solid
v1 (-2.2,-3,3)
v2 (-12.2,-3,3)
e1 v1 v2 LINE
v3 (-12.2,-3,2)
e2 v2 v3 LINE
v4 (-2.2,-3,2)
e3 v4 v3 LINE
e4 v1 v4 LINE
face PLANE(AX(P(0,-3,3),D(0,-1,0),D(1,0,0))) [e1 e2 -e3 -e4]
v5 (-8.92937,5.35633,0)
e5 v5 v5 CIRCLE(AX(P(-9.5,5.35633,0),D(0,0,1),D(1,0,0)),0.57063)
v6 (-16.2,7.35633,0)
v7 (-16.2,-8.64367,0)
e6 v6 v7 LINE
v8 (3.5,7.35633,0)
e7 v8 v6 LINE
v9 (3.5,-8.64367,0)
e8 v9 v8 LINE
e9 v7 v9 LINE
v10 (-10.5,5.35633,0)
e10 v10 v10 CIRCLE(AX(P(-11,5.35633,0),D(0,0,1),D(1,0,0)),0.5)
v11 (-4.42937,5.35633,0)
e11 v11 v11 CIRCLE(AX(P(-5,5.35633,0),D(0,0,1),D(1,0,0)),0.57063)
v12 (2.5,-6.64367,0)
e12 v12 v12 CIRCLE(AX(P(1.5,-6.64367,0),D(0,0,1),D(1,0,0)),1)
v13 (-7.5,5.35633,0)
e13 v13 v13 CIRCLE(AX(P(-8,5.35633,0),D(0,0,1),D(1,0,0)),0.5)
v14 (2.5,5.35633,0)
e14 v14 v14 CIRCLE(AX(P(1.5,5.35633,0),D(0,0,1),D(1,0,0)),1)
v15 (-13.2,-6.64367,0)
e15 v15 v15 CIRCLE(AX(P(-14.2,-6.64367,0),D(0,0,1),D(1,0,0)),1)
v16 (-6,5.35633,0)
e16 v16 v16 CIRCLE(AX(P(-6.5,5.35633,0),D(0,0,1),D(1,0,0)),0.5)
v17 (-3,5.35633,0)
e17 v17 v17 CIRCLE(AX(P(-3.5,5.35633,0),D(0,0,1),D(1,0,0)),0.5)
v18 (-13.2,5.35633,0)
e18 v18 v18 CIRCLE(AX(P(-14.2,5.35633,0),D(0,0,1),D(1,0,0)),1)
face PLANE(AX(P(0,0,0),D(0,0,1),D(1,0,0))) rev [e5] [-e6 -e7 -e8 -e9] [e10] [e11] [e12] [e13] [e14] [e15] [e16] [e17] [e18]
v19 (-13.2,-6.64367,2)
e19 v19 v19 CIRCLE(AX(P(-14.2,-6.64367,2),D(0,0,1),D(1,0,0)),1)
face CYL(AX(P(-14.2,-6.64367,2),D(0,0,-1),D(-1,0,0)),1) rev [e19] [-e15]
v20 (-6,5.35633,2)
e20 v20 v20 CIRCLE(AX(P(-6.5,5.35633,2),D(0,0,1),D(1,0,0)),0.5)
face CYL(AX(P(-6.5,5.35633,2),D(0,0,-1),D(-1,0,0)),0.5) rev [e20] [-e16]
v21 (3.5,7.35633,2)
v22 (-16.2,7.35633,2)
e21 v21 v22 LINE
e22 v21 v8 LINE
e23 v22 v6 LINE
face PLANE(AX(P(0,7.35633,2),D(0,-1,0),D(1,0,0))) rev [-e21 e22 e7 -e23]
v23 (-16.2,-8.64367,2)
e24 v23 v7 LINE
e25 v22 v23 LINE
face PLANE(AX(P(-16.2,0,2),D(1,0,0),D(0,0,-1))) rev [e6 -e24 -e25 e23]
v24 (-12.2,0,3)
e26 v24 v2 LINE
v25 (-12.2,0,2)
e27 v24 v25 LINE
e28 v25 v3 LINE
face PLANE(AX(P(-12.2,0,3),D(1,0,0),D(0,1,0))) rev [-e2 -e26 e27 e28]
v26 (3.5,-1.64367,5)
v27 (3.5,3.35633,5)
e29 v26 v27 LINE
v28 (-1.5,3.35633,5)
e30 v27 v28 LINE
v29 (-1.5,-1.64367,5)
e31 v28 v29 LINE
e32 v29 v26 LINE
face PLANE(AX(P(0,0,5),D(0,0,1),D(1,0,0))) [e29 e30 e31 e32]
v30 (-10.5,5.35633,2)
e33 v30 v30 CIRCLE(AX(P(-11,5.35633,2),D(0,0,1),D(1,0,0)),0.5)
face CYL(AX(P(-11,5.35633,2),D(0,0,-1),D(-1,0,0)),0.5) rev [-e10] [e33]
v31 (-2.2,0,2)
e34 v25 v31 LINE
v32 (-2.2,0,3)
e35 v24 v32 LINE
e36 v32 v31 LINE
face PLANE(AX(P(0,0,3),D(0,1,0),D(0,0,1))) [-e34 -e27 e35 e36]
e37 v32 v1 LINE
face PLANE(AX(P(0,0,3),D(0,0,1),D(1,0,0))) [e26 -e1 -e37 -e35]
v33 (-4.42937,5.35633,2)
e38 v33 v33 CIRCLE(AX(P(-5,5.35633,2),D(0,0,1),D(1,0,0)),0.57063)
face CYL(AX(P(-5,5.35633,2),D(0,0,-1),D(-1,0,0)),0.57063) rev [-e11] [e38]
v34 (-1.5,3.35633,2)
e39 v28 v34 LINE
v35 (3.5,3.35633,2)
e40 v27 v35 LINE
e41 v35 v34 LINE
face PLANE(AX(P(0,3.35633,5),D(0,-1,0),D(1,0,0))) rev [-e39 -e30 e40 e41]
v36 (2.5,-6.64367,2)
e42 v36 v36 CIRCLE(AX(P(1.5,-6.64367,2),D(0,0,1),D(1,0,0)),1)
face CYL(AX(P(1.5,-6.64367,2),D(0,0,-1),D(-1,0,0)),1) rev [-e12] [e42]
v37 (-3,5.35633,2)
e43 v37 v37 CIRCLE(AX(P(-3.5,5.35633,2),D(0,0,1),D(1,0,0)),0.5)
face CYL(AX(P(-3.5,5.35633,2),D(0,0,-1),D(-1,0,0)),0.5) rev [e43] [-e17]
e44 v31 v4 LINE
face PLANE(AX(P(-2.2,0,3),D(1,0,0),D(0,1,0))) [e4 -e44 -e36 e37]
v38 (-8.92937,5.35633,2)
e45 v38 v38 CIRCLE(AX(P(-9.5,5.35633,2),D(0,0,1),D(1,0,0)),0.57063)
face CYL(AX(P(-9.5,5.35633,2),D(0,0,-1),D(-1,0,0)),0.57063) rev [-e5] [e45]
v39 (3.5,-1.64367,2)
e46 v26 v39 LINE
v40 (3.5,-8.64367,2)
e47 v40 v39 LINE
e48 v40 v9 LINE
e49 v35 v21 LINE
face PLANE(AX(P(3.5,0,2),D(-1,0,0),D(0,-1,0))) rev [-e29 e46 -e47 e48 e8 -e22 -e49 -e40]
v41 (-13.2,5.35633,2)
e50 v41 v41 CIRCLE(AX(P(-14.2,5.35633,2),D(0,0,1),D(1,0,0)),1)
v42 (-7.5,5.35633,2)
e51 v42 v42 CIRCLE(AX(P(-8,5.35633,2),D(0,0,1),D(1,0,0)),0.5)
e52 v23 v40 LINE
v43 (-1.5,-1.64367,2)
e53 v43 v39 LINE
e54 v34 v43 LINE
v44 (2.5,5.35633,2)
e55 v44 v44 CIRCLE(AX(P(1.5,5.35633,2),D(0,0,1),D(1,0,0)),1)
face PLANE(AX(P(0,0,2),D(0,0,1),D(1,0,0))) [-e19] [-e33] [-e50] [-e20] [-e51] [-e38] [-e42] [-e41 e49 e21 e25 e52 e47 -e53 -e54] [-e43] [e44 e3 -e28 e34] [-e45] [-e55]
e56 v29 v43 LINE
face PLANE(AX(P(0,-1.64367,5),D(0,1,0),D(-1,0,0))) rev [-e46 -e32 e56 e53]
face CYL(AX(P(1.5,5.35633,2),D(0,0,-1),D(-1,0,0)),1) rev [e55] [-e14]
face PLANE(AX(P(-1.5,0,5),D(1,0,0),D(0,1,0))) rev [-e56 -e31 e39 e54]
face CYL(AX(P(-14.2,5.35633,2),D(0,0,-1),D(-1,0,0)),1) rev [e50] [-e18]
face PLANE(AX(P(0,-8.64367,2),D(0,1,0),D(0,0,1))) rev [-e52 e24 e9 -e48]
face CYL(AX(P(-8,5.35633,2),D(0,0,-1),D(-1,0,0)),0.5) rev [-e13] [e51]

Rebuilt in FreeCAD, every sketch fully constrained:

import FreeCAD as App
import Part
import Sketcher

doc = App.newDocument("Part")
body = doc.addObject("PartDesign::Body", "Body")

sketch1 = doc.addObject("Sketcher::SketchObject", "Sketch")
body.addObject(sketch1)
sketch1.AttachmentSupport = (doc.XY_Plane, [""])
sketch1.MapMode = "FlatFace"
sketch1.addGeometry(Part.LineSegment(App.Vector(3.5, 7.4, 0), App.Vector(-16.2, 7.4, 0)), False)
sketch1.addGeometry(Part.LineSegment(App.Vector(-16.2, 7.4, 0), App.Vector(-16.2, -8.6, 0)), False)
sketch1.addGeometry(Part.LineSegment(App.Vector(-16.2, -8.6, 0), App.Vector(3.5, -8.6, 0)), False)
sketch1.addGeometry(Part.LineSegment(App.Vector(3.5, -8.6, 0), App.Vector(3.5, -1.6, 0)), False)
sketch1.addGeometry(Part.LineSegment(App.Vector(3.5, -1.6, 0), App.Vector(-1.5, -1.6, 0)), False)
sketch1.addGeometry(Part.LineSegment(App.Vector(-1.5, -1.6, 0), App.Vector(-1.5, 3.4, 0)), False)
sketch1.addGeometry(Part.LineSegment(App.Vector(-1.5, 3.4, 0), App.Vector(3.5, 3.4, 0)), False)
sketch1.addGeometry(Part.LineSegment(App.Vector(3.5, 3.4, 0), App.Vector(3.5, 7.4, 0)), False)
sketch1.addGeometry(Part.Circle(App.Vector(-14.2, -6.6, 0), App.Vector(0, 0, 1), 1), False)
sketch1.addGeometry(Part.LineSegment(App.Vector(-2.2, -3, 0), App.Vector(-12.2, -3, 0)), False)
sketch1.addGeometry(Part.LineSegment(App.Vector(-12.2, -3, 0), App.Vector(-12.2, 0, 0)), False)
sketch1.addGeometry(Part.LineSegment(App.Vector(-12.2, 0, 0), App.Vector(-2.2, 0, 0)), False)
sketch1.addGeometry(Part.LineSegment(App.Vector(-2.2, 0, 0), App.Vector(-2.2, -3, 0)), False)
sketch1.addGeometry(Part.Circle(App.Vector(1.5, -6.6, 0), App.Vector(0, 0, 1), 1), False)
sketch1.addGeometry(Part.Circle(App.Vector(-14.2, 5.4, 0), App.Vector(0, 0, 1), 1), False)
sketch1.addGeometry(Part.Circle(App.Vector(-11, 5.4, 0), App.Vector(0, 0, 1), 0.5), False)
sketch1.addGeometry(Part.Circle(App.Vector(-9.5, 5.4, 0), App.Vector(0, 0, 1), 0.6), False)
sketch1.addGeometry(Part.Circle(App.Vector(-8, 5.4, 0), App.Vector(0, 0, 1), 0.5), False)
sketch1.addGeometry(Part.Circle(App.Vector(-6.5, 5.4, 0), App.Vector(0, 0, 1), 0.5), False)
sketch1.addGeometry(Part.Circle(App.Vector(-5, 5.4, 0), App.Vector(0, 0, 1), 0.6), False)
sketch1.addGeometry(Part.Circle(App.Vector(-3.5, 5.4, 0), App.Vector(0, 0, 1), 0.5), False)
sketch1.addGeometry(Part.Circle(App.Vector(1.5, 5.4, 0), App.Vector(0, 0, 1), 1), False)
sketch1.addConstraint(Sketcher.Constraint("Coincident", 0, 2, 1, 1))
sketch1.addConstraint(Sketcher.Constraint("Coincident", 1, 2, 2, 1))
sketch1.addConstraint(Sketcher.Constraint("Coincident", 2, 2, 3, 1))
sketch1.addConstraint(Sketcher.Constraint("Coincident", 3, 2, 4, 1))
sketch1.addConstraint(Sketcher.Constraint("Coincident", 4, 2, 5, 1))
sketch1.addConstraint(Sketcher.Constraint("Coincident", 5, 2, 6, 1))
sketch1.addConstraint(Sketcher.Constraint("Coincident", 6, 2, 7, 1))
sketch1.addConstraint(Sketcher.Constraint("Coincident", 7, 2, 0, 1))
sketch1.addConstraint(Sketcher.Constraint("Coincident", 9, 2, 10, 1))
sketch1.addConstraint(Sketcher.Constraint("Coincident", 10, 2, 11, 1))
sketch1.addConstraint(Sketcher.Constraint("Coincident", 11, 2, 12, 1))
sketch1.addConstraint(Sketcher.Constraint("Coincident", 12, 2, 9, 1))
sketch1.addConstraint(Sketcher.Constraint("Horizontal", 0))
sketch1.addConstraint(Sketcher.Constraint("Vertical", 1))
sketch1.addConstraint(Sketcher.Constraint("Horizontal", 2))
sketch1.addConstraint(Sketcher.Constraint("Vertical", 3))
sketch1.addConstraint(Sketcher.Constraint("Horizontal", 4))
sketch1.addConstraint(Sketcher.Constraint("Vertical", 5))
sketch1.addConstraint(Sketcher.Constraint("Horizontal", 6))
sketch1.addConstraint(Sketcher.Constraint("Vertical", 7))
sketch1.addConstraint(Sketcher.Constraint("Horizontal", 9))
sketch1.addConstraint(Sketcher.Constraint("Vertical", 10))
sketch1.addConstraint(Sketcher.Constraint("Horizontal", 11))
sketch1.addConstraint(Sketcher.Constraint("Vertical", 12))
sketch1.addConstraint(Sketcher.Constraint("Equal", 8, 13))
sketch1.addConstraint(Sketcher.Constraint("Equal", 13, 14))
sketch1.addConstraint(Sketcher.Constraint("Equal", 15, 17))
sketch1.addConstraint(Sketcher.Constraint("Equal", 17, 18))
sketch1.addConstraint(Sketcher.Constraint("Equal", 16, 19))
sketch1.addConstraint(Sketcher.Constraint("Equal", 18, 20))
sketch1.addConstraint(Sketcher.Constraint("Equal", 14, 21))
sketch1.addConstraint(Sketcher.Constraint("PointOnObject", 10, 2, -1))
sketch1.addConstraint(Sketcher.Constraint("Horizontal", 8, 3, 13, 3))
sketch1.addConstraint(Sketcher.Constraint("Horizontal", 14, 3, 15, 3))
sketch1.addConstraint(Sketcher.Constraint("Horizontal", 15, 3, 16, 3))
sketch1.addConstraint(Sketcher.Constraint("Horizontal", 16, 3, 17, 3))
sketch1.addConstraint(Sketcher.Constraint("Horizontal", 17, 3, 18, 3))
sketch1.addConstraint(Sketcher.Constraint("Horizontal", 18, 3, 19, 3))
sketch1.addConstraint(Sketcher.Constraint("Horizontal", 19, 3, 20, 3))
sketch1.addConstraint(Sketcher.Constraint("Horizontal", 20, 3, 21, 3))
sketch1.addConstraint(Sketcher.Constraint("Vertical", 8, 3, 14, 3))
sketch1.addConstraint(Sketcher.Constraint("Vertical", 13, 3, 21, 3))
sketch1.addConstraint(Sketcher.Constraint("Vertical", 3, 2, 6, 2))
sketch1.addConstraint(Sketcher.Constraint("Equal", 6, 5))
sketch1.addConstraint(Sketcher.Constraint("Diameter", 8, 2.0))
sketch1.addConstraint(Sketcher.Constraint("Diameter", 15, 1.0))
sketch1.addConstraint(Sketcher.Constraint("DistanceX", 4, 2, 4, 1, 5.0))
sketch1.addConstraint(Sketcher.Constraint("DistanceX", 9, 2, 9, 1, 10.0))
sketch1.addConstraint(Sketcher.Constraint("DistanceY", 1, 2, 1, 1, 16.0))
sketch1.addConstraint(Sketcher.Constraint("DistanceY", 3, 1, 3, 2, 7.0))
sketch1.addConstraint(Sketcher.Constraint("DistanceY", 10, 1, 10, 2, 3.0))
sketch1.addConstraint(Sketcher.Constraint("DistanceX", 0, 2, 0, 1, 19.7))
sketch1.addConstraint(Sketcher.Constraint("DistanceX", 15, 3, -1, 1, 11.0))
sketch1.addConstraint(Sketcher.Constraint("DistanceX", 17, 3, -1, 1, 8.0))
sketch1.addConstraint(Sketcher.Constraint("DistanceX", 19, 3, -1, 1, 5.0))
sketch1.addConstraint(Sketcher.Constraint("DistanceY", 8, 3, 14, 3, 12.0))
sketch1.addConstraint(Sketcher.Constraint("DistanceX", 16, 3, 13, 3, 11.0))
sketch1.addConstraint(Sketcher.Constraint("DistanceX", 16, 3, 18, 3, 3.0))
sketch1.addConstraint(Sketcher.Constraint("DistanceX", 18, 3, 20, 3, 3.0))
sketch1.addConstraint(Sketcher.Constraint("DistanceX", 0, 2, 14, 3, 2.0))
sketch1.addConstraint(Sketcher.Constraint("DistanceY", 14, 3, 0, 2, 2.0))
sketch1.addConstraint(Sketcher.Constraint("DistanceX", 13, 3, 2, 2, 2.0))
sketch1.addConstraint(Sketcher.Constraint("DistanceX", 8, 3, 9, 2, 2.0))
sketch1.addConstraint(Sketcher.Constraint("DistanceX", 8, 3, -1, 1, 14.2))
sketch1.addConstraint(Sketcher.Constraint("Diameter", 16, 1.141261))
sketch1.addConstraint(Sketcher.Constraint("DistanceY", 8, 3, -1, 1, 6.64367))
pad1 = doc.addObject("PartDesign::Pad", "Pad")
body.addObject(pad1)
pad1.Profile = sketch1
pad1.Length = 2

sketch2 = doc.addObject("Sketcher::SketchObject", "Sketch001")
body.addObject(sketch2)
sketch2.AttachmentSupport = (doc.XY_Plane, [""])
sketch2.MapMode = "FlatFace"
sketch2.addGeometry(Part.LineSegment(App.Vector(-2, 3, 0), App.Vector(-2, -2, 0)), False)
sketch2.addGeometry(Part.LineSegment(App.Vector(-2, -2, 0), App.Vector(4, -2, 0)), False)
sketch2.addGeometry(Part.LineSegment(App.Vector(4, -2, 0), App.Vector(4, 3, 0)), False)
sketch2.addGeometry(Part.LineSegment(App.Vector(4, 3, 0), App.Vector(-2, 3, 0)), False)
sketch2.addConstraint(Sketcher.Constraint("Coincident", 0, 2, 1, 1))
sketch2.addConstraint(Sketcher.Constraint("Coincident", 1, 2, 2, 1))
sketch2.addConstraint(Sketcher.Constraint("Coincident", 2, 2, 3, 1))
sketch2.addConstraint(Sketcher.Constraint("Coincident", 3, 2, 0, 1))
sketch2.addConstraint(Sketcher.Constraint("Vertical", 0))
sketch2.addConstraint(Sketcher.Constraint("Horizontal", 1))
sketch2.addConstraint(Sketcher.Constraint("Vertical", 2))
sketch2.addConstraint(Sketcher.Constraint("Horizontal", 3))
sketch2.addConstraint(Sketcher.Constraint("Equal", 3, 0))
sketch2.addConstraint(Sketcher.Constraint("DistanceX", 1, 1, 1, 2, 5.0))
sketch2.addConstraint(Sketcher.Constraint("DistanceX", 0, 2, -1, 1, 1.5))
sketch2.addConstraint(Sketcher.Constraint("DistanceY", 0, 2, -1, 1, 1.64367))
pad2 = doc.addObject("PartDesign::Pad", "Pad001")
body.addObject(pad2)
pad2.Profile = sketch2
pad2.Length = 5

sketch3 = doc.addObject("Sketcher::SketchObject", "Sketch002")
body.addObject(sketch3)
sketch3.AttachmentSupport = (doc.XY_Plane, [""])
sketch3.MapMode = "FlatFace"
sketch3.addGeometry(Part.LineSegment(App.Vector(-12.2, 0, 0), App.Vector(-12.2, -3, 0)), False)
sketch3.addGeometry(Part.LineSegment(App.Vector(-12.2, -3, 0), App.Vector(-2.2, -3, 0)), False)
sketch3.addGeometry(Part.LineSegment(App.Vector(-2.2, -3, 0), App.Vector(-2.2, 0, 0)), False)
sketch3.addGeometry(Part.LineSegment(App.Vector(-2.2, 0, 0), App.Vector(-12.2, 0, 0)), False)
sketch3.addConstraint(Sketcher.Constraint("Coincident", 0, 2, 1, 1))
sketch3.addConstraint(Sketcher.Constraint("Coincident", 1, 2, 2, 1))
sketch3.addConstraint(Sketcher.Constraint("Coincident", 2, 2, 3, 1))
sketch3.addConstraint(Sketcher.Constraint("Coincident", 3, 2, 0, 1))
sketch3.addConstraint(Sketcher.Constraint("Vertical", 0))
sketch3.addConstraint(Sketcher.Constraint("Horizontal", 1))
sketch3.addConstraint(Sketcher.Constraint("Vertical", 2))
sketch3.addConstraint(Sketcher.Constraint("Horizontal", 3))
sketch3.addConstraint(Sketcher.Constraint("PointOnObject", 2, 2, -1))
sketch3.addConstraint(Sketcher.Constraint("DistanceX", 1, 1, 1, 2, 10.0))
sketch3.addConstraint(Sketcher.Constraint("DistanceY", 0, 2, 0, 1, 3.0))
sketch3.addConstraint(Sketcher.Constraint("DistanceX", 0, 2, -1, 1, 12.2))
pad3 = doc.addObject("PartDesign::Pad", "Pad002")
body.addObject(pad3)
pad3.Profile = sketch3
pad3.Length = 3

doc.recompute()
